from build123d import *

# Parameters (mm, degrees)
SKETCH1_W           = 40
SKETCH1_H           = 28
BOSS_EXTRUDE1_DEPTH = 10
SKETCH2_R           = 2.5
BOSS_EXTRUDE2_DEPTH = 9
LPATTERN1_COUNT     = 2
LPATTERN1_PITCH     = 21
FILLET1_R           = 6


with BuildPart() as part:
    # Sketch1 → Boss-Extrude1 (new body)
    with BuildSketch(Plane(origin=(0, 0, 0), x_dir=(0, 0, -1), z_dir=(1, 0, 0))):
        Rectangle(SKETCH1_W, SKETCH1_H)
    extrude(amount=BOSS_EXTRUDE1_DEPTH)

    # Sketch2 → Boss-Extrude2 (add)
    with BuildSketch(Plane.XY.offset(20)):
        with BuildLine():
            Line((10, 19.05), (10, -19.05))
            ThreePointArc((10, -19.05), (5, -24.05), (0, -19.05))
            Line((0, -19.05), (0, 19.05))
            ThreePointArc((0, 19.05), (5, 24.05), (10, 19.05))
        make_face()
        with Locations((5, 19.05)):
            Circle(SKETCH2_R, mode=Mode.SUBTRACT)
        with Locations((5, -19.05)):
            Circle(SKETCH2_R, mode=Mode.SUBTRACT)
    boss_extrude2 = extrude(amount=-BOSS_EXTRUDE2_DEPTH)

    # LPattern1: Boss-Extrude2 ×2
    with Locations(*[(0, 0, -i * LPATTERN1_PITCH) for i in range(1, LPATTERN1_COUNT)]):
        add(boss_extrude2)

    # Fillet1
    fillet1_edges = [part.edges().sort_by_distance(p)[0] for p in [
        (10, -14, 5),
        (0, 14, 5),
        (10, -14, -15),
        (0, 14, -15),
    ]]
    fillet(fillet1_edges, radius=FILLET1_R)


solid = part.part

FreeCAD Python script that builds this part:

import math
import FreeCAD as App
import Part
import Sketcher

V = App.Vector


def edges_at(feature, points):
    """Names of the edges that pass closest to the given points."""
    edges = feature.Shape.Edges
    near = lambda p: min(range(len(edges)), key=lambda i: edges[i].distToShape(Part.Vertex(*p))[0])
    return sorted({f"Edge{near(p) + 1}" for p in points})

doc = App.newDocument("Part")
params = doc.addObject("Spreadsheet::Sheet", "Params")
for row, (alias, value) in enumerate([
    ("sketch1_width", "28 mm"),
    ("sketch1_height", "40 mm"),
    ("pad1_length", "10 mm"),
    ("sketch2_diameter", "5 mm"),
    ("sketch2_radius", "5 mm"),
    ("sketch2_height", "38.1 mm"),
    ("pad2_length", "9 mm"),
    ("linearpattern_pitch", "21 mm"),
    ("fillet_radius", "6 mm"),
], start=1):
    params.set(f"A{row}", alias)
    params.set(f"B{row}", "=" + value)
    params.setAlias(f"B{row}", alias)

body = doc.addObject("PartDesign::Body", "Body")

sketch1 = doc.addObject("Sketcher::SketchObject", "Sketch")
body.addObject(sketch1)
sketch1.AttachmentSupport = (doc.YZ_Plane, [""])
sketch1.MapMode = "FlatFace"
sketch1.addGeometry([
    Part.LineSegment(V(14, 20, 0), V(-14, 20, 0)),
    Part.LineSegment(V(-14, 20, 0), V(-14, -20, 0)),
    Part.LineSegment(V(-14, -20, 0), V(14, -20, 0)),
    Part.LineSegment(V(14, -20, 0), V(14, 20, 0)),
], False)
sketch1.addConstraint([
    Sketcher.Constraint("Coincident", 0, 2, 1, 1),
    Sketcher.Constraint("Coincident", 1, 2, 2, 1),
    Sketcher.Constraint("Coincident", 2, 2, 3, 1),
    Sketcher.Constraint("Coincident", 3, 2, 0, 1),
    Sketcher.Constraint("Horizontal", 0),
    Sketcher.Constraint("Vertical", 1),
    Sketcher.Constraint("Horizontal", 2),
    Sketcher.Constraint("Vertical", 3),
    Sketcher.Constraint("Symmetric", 0, 2, 2, 2, -1, 1),
    Sketcher.Constraint("DistanceX", 0, 2, 0, 1, 28.0),
    Sketcher.Constraint("DistanceY", 1, 2, 1, 1, 40.0),
])
sketch1.setExpression("Constraints[9]", "Params.sketch1_width")
sketch1.setExpression("Constraints[10]", "Params.sketch1_height")
pad1 = doc.addObject("PartDesign::Pad", "Pad")
body.addObject(pad1)
pad1.Profile = sketch1
pad1.setExpression("Length", "Params.pad1_length")

sketch2 = doc.addObject("Sketcher::SketchObject", "Sketch001")
body.addObject(sketch2)
sketch2.AttachmentSupport = (doc.XY_Plane, [""])
sketch2.MapMode = "FlatFace"
sketch2.AttachmentOffset = App.Placement(V(0, 0, 20), App.Rotation())
sketch2.addGeometry([
    Part.LineSegment(V(10, -19.1, 0), V(10, 19.1, 0)),
    Part.ArcOfCircle(Part.Circle(V(5, 19.1, 0), V(0, 0, 1), 5), math.radians(0), math.radians(180)),
    Part.LineSegment(V(0, 19.1, 0), V(0, -19.1, 0)),
    Part.ArcOfCircle(Part.Circle(V(5, -19.1, 0), V(0, 0, 1), 5), math.radians(180), math.radians(360)),
    Part.Circle(V(5, -19.1, 0), V(0, 0, 1), 2.5),
    Part.Circle(V(5, 19.1, 0), V(0, 0, 1), 2.5),
], False)
sketch2.addConstraint([
    Sketcher.Constraint("Tangent", 0, 2, 1, 1),
    Sketcher.Constraint("Tangent", 1, 2, 2, 1),
    Sketcher.Constraint("Tangent", 2, 2, 3, 1),
    Sketcher.Constraint("Tangent", 3, 2, 0, 1),
    Sketcher.Constraint("Vertical", 0),
    Sketcher.Constraint("Vertical", 2),
    Sketcher.Constraint("Coincident", 4, 3, 3, 3),
    Sketcher.Constraint("Coincident", 5, 3, 1, 3),
    Sketcher.Constraint("Equal", 4, 5),
    Sketcher.Constraint("Symmetric", 1, 2, 2, 2, -1, 1),
    Sketcher.Constraint("Diameter", 4, 5.0),
    Sketcher.Constraint("Radius", 1, 5.0),
    Sketcher.Constraint("DistanceY", 0, 1, 0, 2, 38.1),
])
sketch2.setExpression("Constraints[10]", "Params.sketch2_diameter")
sketch2.setExpression("Constraints[11]", "Params.sketch2_radius")
sketch2.setExpression("Constraints[12]", "Params.sketch2_height")
pad2 = doc.addObject("PartDesign::Pad", "Pad001")
body.addObject(pad2)
pad2.Profile = sketch2
pad2.setExpression("Length", "Params.pad2_length")
pad2.Reversed = True
doc.recompute()

linearpattern = doc.addObject("PartDesign::LinearPattern", "LinearPattern")
body.addObject(linearpattern)
linearpattern.Originals = [pad2]
linearpattern.Direction = (doc.Z_Axis, [""])
linearpattern.Mode = "offset"
linearpattern.setExpression("Offset", "Params.linearpattern_pitch")
linearpattern.Occurrences = 2
linearpattern.Reversed = True
body.Tip = linearpattern
doc.recompute()

fillet = doc.addObject("PartDesign::Fillet", "Fillet")
body.addObject(fillet)
fillet.Base = (linearpattern, edges_at(linearpattern, [
    (10, -14, 5),
    (0, 14, 5),
    (10, -14, -15),
    (0, 14, -15),
]))
fillet.setExpression("Radius", "Params.fillet_radius")

doc.recompute()
